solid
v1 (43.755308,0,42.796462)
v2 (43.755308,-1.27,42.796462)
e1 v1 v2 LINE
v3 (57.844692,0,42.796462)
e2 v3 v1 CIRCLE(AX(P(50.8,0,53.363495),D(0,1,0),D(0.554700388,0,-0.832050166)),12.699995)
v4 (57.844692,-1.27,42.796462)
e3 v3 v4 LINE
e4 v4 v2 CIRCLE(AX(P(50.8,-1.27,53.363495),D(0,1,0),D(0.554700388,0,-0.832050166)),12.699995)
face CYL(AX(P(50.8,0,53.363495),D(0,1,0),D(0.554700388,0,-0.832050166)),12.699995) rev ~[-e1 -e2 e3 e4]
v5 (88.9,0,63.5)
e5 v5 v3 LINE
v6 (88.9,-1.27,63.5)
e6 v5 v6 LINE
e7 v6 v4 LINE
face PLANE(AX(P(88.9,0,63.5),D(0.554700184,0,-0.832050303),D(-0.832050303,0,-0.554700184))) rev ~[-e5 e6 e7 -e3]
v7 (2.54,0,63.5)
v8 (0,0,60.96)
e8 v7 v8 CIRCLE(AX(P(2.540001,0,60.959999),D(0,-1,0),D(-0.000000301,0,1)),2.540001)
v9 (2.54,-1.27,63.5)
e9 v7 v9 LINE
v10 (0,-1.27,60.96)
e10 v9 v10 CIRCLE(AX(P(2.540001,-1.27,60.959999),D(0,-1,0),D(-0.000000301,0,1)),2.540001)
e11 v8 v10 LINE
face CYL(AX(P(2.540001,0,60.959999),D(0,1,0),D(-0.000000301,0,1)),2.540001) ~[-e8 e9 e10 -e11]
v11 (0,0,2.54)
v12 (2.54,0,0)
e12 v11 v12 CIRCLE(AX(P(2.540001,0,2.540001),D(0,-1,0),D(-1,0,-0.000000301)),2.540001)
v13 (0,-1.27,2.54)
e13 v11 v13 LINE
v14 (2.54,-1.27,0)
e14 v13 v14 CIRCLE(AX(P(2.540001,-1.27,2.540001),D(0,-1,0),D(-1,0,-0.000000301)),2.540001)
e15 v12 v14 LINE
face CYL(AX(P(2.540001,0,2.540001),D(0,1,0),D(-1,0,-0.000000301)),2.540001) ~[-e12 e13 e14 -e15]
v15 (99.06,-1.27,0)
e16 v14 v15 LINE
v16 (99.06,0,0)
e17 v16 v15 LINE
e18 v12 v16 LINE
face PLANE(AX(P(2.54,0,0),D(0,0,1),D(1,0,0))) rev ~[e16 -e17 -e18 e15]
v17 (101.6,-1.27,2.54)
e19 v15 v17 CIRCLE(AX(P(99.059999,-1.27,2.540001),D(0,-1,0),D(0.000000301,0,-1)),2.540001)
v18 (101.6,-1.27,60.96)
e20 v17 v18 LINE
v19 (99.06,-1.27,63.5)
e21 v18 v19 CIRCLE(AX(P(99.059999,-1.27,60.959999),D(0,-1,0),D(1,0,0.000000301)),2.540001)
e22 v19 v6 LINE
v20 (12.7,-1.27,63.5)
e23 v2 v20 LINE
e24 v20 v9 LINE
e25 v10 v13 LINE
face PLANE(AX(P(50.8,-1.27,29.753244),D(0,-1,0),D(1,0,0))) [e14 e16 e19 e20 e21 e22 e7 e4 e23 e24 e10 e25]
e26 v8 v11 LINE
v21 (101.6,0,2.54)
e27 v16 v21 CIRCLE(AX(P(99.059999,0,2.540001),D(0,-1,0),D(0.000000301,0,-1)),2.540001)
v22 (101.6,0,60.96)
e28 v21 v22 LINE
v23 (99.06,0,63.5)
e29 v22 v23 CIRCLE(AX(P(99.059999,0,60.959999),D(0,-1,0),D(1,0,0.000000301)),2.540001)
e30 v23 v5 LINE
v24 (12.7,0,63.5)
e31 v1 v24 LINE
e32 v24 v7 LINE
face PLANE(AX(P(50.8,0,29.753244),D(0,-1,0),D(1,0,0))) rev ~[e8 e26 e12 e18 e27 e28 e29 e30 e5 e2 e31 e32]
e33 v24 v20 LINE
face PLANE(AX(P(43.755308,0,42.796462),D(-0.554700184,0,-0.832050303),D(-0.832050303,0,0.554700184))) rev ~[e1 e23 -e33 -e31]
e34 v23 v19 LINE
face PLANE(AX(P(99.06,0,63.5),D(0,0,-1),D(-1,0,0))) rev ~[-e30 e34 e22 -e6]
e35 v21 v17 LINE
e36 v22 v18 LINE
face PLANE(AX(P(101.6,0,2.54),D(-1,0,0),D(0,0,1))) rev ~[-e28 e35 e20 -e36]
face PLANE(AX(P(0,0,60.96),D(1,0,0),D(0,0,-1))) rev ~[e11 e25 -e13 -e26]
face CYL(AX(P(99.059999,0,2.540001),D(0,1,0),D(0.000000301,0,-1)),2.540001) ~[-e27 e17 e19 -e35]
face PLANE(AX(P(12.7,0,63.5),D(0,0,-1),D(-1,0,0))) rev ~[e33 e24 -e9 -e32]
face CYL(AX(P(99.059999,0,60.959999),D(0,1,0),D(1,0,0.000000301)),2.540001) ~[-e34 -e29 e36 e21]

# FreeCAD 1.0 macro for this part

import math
import FreeCAD as App
import Part
import Sketcher
from FreeCAD import Vector
Q = App.Units.Quantity

doc = App.newDocument("Part")
body = doc.addObject("PartDesign::Body", "Body")

sketch1 = doc.addObject("Sketcher::SketchObject", "Sketch")
body.addObject(sketch1)
sketch1.AttachmentSupport = (doc.XZ_Plane, [""])
sketch1.MapMode = "FlatFace"
sketch1.addGeometry(Part.ArcOfCircle(Part.Circle(Vector(2.5, 2.5, 0), Vector(0, 0, 1), 2.5), math.radians(-180), math.radians(-90)), False)
sketch1.addGeometry(Part.LineSegment(Vector(2.5, 0, 0), Vector(99.1, 0, 0)), False)
sketch1.addGeometry(Part.ArcOfCircle(Part.Circle(Vector(99.1, 2.5, 0), Vector(0, 0, 1), 2.5), math.radians(-90), math.radians(0)), False)
sketch1.addGeometry(Part.LineSegment(Vector(101.6, 2.5, 0), Vector(101.6, 61, 0)), False)
sketch1.addGeometry(Part.ArcOfCircle(Part.Circle(Vector(99.1, 61, 0), Vector(0, 0, 1), 2.5), math.radians(0), math.radians(90)), False)
sketch1.addGeometry(Part.LineSegment(Vector(99.1, 63.5, 0), Vector(88.9, 63.5, 0)), False)
sketch1.addGeometry(Part.LineSegment(Vector(88.9, 63.5, 0), Vector(57.8, 42.8, 0)), False)
sketch1.addGeometry(Part.ArcOfCircle(Part.Circle(Vector(50.8, 53.4, 0), Vector(0, 0, 1), 12.7), math.radians(-124), math.radians(-56)), False)
sketch1.addGeometry(Part.LineSegment(Vector(43.8, 42.8, 0), Vector(12.7, 63.5, 0)), False)
sketch1.addGeometry(Part.LineSegment(Vector(12.7, 63.5, 0), Vector(2.5, 63.5, 0)), False)
sketch1.addGeometry(Part.ArcOfCircle(Part.Circle(Vector(2.5, 61, 0), Vector(0, 0, 1), 2.5), math.radians(90), math.radians(180)), False)
sketch1.addGeometry(Part.LineSegment(Vector(0, 61, 0), Vector(0, 2.5, 0)), False)
sketch1.addConstraint(Sketcher.Constraint("Tangent", 0, 2, 1, 1))
sketch1.addConstraint(Sketcher.Constraint("Tangent", 1, 2, 2, 1))
sketch1.addConstraint(Sketcher.Constraint("Tangent", 2, 2, 3, 1))
sketch1.addConstraint(Sketcher.Constraint("Tangent", 3, 2, 4, 1))
sketch1.addConstraint(Sketcher.Constraint("Tangent", 4, 2, 5, 1))
sketch1.addConstraint(Sketcher.Constraint("Coincident", 5, 2, 6, 1))
sketch1.addConstraint(Sketcher.Constraint("Tangent", 6, 2, 7, 2))
sketch1.addConstraint(Sketcher.Constraint("Tangent", 7, 1, 8, 1))
sketch1.addConstraint(Sketcher.Constraint("Coincident", 8, 2, 9, 1))
sketch1.addConstraint(Sketcher.Constraint("Tangent", 9, 2, 10, 1))
sketch1.addConstraint(Sketcher.Constraint("Tangent", 10, 2, 11, 1))
sketch1.addConstraint(Sketcher.Constraint("Tangent", 11, 2, 0, 1))
sketch1.addConstraint(Sketcher.Constraint("Horizontal", 1))
sketch1.addConstraint(Sketcher.Constraint("Vertical", 3))
sketch1.addConstraint(Sketcher.Constraint("Horizontal", 5))
sketch1.addConstraint(Sketcher.Constraint("Horizontal", 9))
sketch1.addConstraint(Sketcher.Constraint("Vertical", 11))
sketch1.addConstraint(Sketcher.Constraint("Equal", 0, 2))
sketch1.addConstraint(Sketcher.Constraint("Equal", 2, 4))
sketch1.addConstraint(Sketcher.Constraint("Equal", 4, 10))
sketch1.addConstraint(Sketcher.Constraint("PointOnObject", 0, 2, -1))
sketch1.addConstraint(Sketcher.Constraint("PointOnObject", 10, 2, -2))
sketch1.addConstraint(Sketcher.Constraint("Horizontal", 4, 3, 10, 3))
sketch1.addConstraint(Sketcher.Constraint("Horizontal", 6, 2, 7, 1))
sketch1.addConstraint(Sketcher.Constraint("Equal", 5, 9))
sketch1.addConstraint(Sketcher.Constraint("Radius", 0, Q("0.1 in")))
sketch1.addConstraint(Sketcher.Constraint("DistanceX", 1, 1, 1, 2, Q("3.8 in")))
sketch1.addConstraint(Sketcher.Constraint("DistanceX", 5, 2, 5, 1, Q("0.4 in")))
sketch1.addConstraint(Sketcher.Constraint("DistanceY", 3, 1, 3, 2, Q("2.3 in")))
sketch1.addConstraint(Sketcher.Constraint("DistanceY", -1, 1, 6, 2, Q("1.6849001 in")))
sketch1.addConstraint(Sketcher.Constraint("Radius", 7, 12.699995))
pad1 = doc.addObject("PartDesign::Pad", "Pad")
body.addObject(pad1)
pad1.Profile = sketch1
pad1.Length = Q("0.05 in")

doc.recompute()
